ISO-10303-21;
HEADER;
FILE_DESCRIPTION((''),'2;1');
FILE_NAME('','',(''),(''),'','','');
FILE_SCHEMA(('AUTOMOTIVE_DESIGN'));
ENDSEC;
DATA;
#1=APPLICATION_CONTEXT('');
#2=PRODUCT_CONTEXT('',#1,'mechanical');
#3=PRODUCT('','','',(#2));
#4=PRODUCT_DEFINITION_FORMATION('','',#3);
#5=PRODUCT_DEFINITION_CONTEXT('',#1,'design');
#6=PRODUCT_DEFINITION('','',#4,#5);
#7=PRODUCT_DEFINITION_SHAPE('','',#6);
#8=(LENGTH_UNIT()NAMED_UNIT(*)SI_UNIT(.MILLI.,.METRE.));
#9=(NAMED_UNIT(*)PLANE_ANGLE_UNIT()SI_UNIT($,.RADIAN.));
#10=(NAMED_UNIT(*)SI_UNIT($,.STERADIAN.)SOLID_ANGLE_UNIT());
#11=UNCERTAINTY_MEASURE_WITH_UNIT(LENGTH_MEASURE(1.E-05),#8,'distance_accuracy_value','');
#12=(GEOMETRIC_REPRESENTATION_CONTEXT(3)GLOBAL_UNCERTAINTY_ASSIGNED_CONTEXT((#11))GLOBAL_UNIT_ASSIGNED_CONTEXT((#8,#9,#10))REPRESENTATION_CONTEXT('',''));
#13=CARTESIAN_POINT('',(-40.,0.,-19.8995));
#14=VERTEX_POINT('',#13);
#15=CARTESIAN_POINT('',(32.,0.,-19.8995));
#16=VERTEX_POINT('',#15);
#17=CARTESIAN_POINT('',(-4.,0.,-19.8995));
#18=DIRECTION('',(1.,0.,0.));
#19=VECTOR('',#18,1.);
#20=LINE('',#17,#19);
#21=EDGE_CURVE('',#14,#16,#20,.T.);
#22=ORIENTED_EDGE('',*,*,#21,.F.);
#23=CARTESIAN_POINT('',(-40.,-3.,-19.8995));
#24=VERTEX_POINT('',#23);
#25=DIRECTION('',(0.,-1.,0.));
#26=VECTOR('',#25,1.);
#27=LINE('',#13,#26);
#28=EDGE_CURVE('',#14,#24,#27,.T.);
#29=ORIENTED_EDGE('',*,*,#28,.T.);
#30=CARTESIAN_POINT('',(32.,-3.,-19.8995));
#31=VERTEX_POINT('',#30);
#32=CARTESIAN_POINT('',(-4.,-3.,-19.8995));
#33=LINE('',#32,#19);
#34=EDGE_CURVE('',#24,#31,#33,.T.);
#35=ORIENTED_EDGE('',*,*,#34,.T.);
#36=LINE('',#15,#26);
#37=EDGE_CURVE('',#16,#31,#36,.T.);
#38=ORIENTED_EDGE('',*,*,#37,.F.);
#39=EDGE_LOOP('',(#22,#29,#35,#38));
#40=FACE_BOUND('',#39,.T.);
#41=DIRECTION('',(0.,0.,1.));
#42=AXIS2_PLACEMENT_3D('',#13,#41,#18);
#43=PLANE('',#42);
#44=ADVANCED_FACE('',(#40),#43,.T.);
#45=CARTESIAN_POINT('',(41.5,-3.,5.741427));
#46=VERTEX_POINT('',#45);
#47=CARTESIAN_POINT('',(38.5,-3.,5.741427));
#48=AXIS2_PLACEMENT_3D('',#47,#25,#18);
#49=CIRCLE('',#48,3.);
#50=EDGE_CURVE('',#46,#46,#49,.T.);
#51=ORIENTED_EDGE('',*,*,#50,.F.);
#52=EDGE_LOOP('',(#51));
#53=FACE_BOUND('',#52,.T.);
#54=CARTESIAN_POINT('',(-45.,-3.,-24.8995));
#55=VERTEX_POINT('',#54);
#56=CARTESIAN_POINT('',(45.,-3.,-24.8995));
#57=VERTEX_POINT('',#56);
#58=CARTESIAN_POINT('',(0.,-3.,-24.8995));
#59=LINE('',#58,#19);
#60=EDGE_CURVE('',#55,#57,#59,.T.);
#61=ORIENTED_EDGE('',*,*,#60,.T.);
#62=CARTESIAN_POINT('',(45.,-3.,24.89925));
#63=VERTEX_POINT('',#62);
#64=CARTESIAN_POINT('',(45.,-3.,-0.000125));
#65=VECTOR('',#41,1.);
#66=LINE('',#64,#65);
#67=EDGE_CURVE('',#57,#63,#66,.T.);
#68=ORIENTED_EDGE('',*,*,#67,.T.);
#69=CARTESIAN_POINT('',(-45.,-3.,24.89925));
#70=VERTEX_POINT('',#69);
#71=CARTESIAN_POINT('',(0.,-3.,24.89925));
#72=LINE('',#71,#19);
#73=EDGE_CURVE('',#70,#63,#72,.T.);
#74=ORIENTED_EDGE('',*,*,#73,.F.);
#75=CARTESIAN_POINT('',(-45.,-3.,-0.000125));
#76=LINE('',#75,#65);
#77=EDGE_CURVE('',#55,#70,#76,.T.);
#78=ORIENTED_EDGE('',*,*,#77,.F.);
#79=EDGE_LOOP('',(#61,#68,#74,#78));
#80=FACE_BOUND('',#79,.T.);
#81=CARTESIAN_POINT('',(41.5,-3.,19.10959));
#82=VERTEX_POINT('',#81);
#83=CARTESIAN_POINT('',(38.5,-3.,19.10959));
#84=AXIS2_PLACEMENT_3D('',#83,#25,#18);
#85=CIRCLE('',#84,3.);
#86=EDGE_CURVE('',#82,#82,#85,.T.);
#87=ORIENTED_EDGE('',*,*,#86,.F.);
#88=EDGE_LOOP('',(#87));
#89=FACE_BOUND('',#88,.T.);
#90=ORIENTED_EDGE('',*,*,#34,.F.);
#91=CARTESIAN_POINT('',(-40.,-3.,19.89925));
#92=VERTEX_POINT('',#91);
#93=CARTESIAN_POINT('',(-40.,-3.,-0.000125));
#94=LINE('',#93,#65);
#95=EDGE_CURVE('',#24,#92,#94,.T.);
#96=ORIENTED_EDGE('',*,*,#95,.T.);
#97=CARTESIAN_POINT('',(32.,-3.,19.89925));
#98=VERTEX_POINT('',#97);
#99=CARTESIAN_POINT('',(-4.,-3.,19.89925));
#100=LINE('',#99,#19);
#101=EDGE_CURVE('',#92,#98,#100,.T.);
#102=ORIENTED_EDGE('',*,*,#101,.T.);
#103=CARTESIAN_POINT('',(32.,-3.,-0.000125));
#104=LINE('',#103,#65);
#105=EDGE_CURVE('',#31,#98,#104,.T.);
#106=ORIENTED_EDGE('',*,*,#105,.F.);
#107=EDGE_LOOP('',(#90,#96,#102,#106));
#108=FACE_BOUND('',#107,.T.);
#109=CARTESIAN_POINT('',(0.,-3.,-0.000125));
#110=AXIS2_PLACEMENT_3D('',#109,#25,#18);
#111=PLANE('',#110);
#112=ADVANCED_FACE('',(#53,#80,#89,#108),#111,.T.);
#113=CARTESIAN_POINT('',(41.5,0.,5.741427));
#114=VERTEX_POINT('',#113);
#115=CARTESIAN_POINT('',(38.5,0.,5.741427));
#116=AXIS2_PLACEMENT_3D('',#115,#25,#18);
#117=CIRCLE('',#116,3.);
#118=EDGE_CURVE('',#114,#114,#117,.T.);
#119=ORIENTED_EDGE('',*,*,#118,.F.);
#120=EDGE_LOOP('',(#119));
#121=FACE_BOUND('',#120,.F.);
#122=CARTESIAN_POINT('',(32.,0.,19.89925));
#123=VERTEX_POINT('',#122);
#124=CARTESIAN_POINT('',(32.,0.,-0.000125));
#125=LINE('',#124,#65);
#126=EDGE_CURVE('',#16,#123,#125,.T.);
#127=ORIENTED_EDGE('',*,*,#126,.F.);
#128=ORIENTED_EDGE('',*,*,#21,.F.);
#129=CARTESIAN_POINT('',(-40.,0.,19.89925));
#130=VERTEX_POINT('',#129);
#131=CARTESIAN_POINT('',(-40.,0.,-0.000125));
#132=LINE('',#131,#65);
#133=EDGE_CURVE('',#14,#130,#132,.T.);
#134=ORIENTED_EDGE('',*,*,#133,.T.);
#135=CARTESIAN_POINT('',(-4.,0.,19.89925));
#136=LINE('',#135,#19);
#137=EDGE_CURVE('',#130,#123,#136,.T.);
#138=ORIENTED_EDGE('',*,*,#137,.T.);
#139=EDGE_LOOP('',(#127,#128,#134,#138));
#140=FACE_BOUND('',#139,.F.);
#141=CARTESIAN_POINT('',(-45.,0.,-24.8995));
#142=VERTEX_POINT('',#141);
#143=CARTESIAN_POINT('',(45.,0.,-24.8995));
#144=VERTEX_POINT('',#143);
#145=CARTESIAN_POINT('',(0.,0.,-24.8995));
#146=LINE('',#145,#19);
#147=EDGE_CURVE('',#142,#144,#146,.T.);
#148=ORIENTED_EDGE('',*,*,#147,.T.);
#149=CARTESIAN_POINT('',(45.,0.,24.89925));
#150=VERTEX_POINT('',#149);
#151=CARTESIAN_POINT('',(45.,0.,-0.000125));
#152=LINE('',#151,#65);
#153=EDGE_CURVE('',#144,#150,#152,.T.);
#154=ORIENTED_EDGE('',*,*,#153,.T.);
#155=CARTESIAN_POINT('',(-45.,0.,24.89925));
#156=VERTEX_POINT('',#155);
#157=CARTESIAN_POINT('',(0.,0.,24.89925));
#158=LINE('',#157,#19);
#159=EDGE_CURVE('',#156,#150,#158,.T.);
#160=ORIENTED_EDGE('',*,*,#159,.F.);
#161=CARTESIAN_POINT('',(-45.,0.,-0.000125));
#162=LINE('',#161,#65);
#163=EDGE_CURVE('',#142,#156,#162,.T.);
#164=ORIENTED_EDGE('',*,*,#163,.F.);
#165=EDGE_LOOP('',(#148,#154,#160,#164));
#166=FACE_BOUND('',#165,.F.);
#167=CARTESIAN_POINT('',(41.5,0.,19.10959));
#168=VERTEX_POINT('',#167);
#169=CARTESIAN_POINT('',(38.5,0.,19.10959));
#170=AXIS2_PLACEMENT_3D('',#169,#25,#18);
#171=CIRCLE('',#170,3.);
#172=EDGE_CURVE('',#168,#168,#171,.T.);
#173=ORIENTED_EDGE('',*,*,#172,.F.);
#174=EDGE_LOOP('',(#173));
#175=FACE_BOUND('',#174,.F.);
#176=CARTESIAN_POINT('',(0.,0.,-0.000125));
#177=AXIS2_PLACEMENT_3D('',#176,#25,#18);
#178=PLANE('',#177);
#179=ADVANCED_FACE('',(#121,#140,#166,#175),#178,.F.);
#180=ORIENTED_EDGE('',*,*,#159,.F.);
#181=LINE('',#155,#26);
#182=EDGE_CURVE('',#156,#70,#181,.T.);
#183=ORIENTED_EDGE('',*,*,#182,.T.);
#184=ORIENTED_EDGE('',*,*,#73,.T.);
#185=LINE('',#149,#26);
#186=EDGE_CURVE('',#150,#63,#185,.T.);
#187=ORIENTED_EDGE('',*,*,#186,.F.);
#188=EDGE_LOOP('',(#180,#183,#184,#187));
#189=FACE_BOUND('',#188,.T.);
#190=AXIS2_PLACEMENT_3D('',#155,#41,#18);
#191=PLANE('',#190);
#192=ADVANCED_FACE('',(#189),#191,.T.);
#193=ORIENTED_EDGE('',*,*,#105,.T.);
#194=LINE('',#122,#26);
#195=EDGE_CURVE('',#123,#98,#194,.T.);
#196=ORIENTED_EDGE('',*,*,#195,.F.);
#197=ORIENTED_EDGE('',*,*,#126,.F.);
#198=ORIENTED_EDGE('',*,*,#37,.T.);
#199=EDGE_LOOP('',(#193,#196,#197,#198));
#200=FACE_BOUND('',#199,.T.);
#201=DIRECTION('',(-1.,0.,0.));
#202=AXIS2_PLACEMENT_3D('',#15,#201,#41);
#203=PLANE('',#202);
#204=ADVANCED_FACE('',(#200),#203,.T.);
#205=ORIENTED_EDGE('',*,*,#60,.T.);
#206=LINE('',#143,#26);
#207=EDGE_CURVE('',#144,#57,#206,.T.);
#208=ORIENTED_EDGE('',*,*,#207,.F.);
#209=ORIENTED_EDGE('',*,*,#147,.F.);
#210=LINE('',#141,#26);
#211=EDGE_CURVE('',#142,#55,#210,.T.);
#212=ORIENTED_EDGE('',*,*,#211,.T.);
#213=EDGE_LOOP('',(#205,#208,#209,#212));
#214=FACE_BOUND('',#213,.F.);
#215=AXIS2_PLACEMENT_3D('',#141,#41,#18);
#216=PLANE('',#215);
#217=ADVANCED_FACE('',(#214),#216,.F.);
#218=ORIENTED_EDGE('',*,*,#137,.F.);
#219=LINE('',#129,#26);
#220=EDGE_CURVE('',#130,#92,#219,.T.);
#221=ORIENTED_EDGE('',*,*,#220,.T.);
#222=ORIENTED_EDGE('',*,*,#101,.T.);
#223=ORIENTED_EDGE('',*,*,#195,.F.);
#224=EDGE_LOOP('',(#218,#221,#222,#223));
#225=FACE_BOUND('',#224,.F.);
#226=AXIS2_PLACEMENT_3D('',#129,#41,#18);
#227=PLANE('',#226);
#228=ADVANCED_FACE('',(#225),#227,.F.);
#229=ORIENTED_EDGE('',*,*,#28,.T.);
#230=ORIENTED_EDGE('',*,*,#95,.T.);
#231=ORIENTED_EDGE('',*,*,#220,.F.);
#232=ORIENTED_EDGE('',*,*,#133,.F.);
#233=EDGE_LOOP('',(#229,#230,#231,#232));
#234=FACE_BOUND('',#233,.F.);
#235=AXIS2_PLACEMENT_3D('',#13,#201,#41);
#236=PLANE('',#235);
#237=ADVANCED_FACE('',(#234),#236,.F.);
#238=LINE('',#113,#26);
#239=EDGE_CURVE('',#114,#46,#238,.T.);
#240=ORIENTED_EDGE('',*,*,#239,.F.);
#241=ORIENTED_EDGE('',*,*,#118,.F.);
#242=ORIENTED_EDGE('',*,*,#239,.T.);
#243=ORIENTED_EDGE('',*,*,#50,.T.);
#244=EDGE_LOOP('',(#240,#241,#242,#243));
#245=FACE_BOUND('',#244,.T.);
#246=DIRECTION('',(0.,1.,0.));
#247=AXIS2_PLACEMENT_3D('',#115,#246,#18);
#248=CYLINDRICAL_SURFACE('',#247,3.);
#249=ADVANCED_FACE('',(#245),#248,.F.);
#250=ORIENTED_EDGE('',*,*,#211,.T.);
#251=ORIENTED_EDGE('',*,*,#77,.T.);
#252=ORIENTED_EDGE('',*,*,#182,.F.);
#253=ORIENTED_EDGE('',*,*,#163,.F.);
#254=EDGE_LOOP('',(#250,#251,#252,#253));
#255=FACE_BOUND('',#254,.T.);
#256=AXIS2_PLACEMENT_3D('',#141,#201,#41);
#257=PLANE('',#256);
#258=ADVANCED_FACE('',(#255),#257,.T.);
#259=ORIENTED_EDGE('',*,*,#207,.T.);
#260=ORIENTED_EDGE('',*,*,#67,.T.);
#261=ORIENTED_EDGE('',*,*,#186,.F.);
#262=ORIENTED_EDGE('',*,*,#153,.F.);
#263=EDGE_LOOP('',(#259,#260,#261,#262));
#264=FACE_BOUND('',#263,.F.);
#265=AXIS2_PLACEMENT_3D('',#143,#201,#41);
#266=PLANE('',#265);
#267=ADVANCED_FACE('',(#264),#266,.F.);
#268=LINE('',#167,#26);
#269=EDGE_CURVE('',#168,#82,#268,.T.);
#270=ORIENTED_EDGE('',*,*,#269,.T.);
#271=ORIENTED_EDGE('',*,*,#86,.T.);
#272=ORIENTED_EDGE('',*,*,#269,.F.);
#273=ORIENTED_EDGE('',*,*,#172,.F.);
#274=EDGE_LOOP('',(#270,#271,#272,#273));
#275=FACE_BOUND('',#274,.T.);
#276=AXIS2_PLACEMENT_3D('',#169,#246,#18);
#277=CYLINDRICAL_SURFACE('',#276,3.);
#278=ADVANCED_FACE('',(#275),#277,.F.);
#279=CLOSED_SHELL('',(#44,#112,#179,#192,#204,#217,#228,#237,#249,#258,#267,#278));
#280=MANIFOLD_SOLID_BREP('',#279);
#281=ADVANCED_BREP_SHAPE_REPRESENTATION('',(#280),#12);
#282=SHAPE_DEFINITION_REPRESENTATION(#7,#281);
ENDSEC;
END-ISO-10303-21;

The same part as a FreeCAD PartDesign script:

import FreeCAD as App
import Part
import Sketcher
from FreeCAD import Vector
Q = App.Units.Quantity

doc = App.newDocument("Part")
body = doc.addObject("PartDesign::Body", "Body")

sketch1 = doc.addObject("Sketcher::SketchObject", "Sketch")
body.addObject(sketch1)
sketch1.AttachmentSupport = (doc.XZ_Plane, [""])
sketch1.MapMode = "FlatFace"
sketch1.addGeometry([
    Part.LineSegment(Vector(-45, 24.9, 0), Vector(-45, -24.9, 0)),
    Part.LineSegment(Vector(-45, -24.9, 0), Vector(45, -24.9, 0)),
    Part.LineSegment(Vector(45, -24.9, 0), Vector(45, 24.9, 0)),
    Part.LineSegment(Vector(45, 24.9, 0), Vector(-45, 24.9, 0)),
    Part.LineSegment(Vector(32, -19.9, 0), Vector(-40, -19.9, 0)),
    Part.LineSegment(Vector(-40, -19.9, 0), Vector(-40, 19.9, 0)),
    Part.LineSegment(Vector(-40, 19.9, 0), Vector(32, 19.9, 0)),
    Part.LineSegment(Vector(32, 19.9, 0), Vector(32, -19.9, 0)),
    Part.Circle(Vector(38.5, 5.7, 0), Vector(0, 0, 1), 3),
    Part.Circle(Vector(38.5, 19.1, 0), Vector(0, 0, 1), 3),
], False)
sketch1.addConstraint([
    Sketcher.Constraint("Coincident", 0, 2, 1, 1),
    Sketcher.Constraint("Coincident", 1, 2, 2, 1),
    Sketcher.Constraint("Coincident", 2, 2, 3, 1),
    Sketcher.Constraint("Coincident", 3, 2, 0, 1),
    Sketcher.Constraint("Coincident", 4, 2, 5, 1),
    Sketcher.Constraint("Coincident", 5, 2, 6, 1),
    Sketcher.Constraint("Coincident", 6, 2, 7, 1),
    Sketcher.Constraint("Coincident", 7, 2, 4, 1),
    Sketcher.Constraint("Vertical", 0),
    Sketcher.Constraint("Horizontal", 1),
    Sketcher.Constraint("Vertical", 2),
    Sketcher.Constraint("Horizontal", 3),
    Sketcher.Constraint("Horizontal", 4),
    Sketcher.Constraint("Vertical", 5),
    Sketcher.Constraint("Horizontal", 6),
    Sketcher.Constraint("Vertical", 7),
    Sketcher.Constraint("Equal", 8, 9),
    Sketcher.Constraint("Vertical", 8, 3, 9, 3),
    Sketcher.Constraint("Diameter", 8, Q("6 mm")),
    Sketcher.Constraint("DistanceX", 1, 1, 1, 2, Q("90 mm")),
    Sketcher.Constraint("DistanceX", 4, 2, 4, 1, Q("72 mm")),
    Sketcher.Constraint("DistanceX", 0, 2, -1, 1, Q("45 mm")),
    Sketcher.Constraint("DistanceX", 4, 2, -1, 1, Q("40 mm")),
    Sketcher.Constraint("DistanceY", 0, 2, 4, 2, Q("5 mm")),
    Sketcher.Constraint("DistanceY", 5, 2, 3, 2, Q("5 mm")),
    Sketcher.Constraint("DistanceX", -1, 1, 8, 3, Q("38.5 mm")),
    Sketcher.Constraint("DistanceY", 0, 2, 0, 1, Q("49.79875 mm")),
    Sketcher.Constraint("DistanceY", 0, 2, -1, 1, Q("24.8995 mm")),
    Sketcher.Constraint("DistanceY", -1, 1, 9, 3, Q("19.10959 mm")),
    Sketcher.Constraint("DistanceY", -1, 1, 8, 3, Q("5.741427 mm")),
])
pad1 = doc.addObject("PartDesign::Pad", "Pad")
body.addObject(pad1)
pad1.Profile = sketch1
pad1.Length = 3

doc.recompute()
